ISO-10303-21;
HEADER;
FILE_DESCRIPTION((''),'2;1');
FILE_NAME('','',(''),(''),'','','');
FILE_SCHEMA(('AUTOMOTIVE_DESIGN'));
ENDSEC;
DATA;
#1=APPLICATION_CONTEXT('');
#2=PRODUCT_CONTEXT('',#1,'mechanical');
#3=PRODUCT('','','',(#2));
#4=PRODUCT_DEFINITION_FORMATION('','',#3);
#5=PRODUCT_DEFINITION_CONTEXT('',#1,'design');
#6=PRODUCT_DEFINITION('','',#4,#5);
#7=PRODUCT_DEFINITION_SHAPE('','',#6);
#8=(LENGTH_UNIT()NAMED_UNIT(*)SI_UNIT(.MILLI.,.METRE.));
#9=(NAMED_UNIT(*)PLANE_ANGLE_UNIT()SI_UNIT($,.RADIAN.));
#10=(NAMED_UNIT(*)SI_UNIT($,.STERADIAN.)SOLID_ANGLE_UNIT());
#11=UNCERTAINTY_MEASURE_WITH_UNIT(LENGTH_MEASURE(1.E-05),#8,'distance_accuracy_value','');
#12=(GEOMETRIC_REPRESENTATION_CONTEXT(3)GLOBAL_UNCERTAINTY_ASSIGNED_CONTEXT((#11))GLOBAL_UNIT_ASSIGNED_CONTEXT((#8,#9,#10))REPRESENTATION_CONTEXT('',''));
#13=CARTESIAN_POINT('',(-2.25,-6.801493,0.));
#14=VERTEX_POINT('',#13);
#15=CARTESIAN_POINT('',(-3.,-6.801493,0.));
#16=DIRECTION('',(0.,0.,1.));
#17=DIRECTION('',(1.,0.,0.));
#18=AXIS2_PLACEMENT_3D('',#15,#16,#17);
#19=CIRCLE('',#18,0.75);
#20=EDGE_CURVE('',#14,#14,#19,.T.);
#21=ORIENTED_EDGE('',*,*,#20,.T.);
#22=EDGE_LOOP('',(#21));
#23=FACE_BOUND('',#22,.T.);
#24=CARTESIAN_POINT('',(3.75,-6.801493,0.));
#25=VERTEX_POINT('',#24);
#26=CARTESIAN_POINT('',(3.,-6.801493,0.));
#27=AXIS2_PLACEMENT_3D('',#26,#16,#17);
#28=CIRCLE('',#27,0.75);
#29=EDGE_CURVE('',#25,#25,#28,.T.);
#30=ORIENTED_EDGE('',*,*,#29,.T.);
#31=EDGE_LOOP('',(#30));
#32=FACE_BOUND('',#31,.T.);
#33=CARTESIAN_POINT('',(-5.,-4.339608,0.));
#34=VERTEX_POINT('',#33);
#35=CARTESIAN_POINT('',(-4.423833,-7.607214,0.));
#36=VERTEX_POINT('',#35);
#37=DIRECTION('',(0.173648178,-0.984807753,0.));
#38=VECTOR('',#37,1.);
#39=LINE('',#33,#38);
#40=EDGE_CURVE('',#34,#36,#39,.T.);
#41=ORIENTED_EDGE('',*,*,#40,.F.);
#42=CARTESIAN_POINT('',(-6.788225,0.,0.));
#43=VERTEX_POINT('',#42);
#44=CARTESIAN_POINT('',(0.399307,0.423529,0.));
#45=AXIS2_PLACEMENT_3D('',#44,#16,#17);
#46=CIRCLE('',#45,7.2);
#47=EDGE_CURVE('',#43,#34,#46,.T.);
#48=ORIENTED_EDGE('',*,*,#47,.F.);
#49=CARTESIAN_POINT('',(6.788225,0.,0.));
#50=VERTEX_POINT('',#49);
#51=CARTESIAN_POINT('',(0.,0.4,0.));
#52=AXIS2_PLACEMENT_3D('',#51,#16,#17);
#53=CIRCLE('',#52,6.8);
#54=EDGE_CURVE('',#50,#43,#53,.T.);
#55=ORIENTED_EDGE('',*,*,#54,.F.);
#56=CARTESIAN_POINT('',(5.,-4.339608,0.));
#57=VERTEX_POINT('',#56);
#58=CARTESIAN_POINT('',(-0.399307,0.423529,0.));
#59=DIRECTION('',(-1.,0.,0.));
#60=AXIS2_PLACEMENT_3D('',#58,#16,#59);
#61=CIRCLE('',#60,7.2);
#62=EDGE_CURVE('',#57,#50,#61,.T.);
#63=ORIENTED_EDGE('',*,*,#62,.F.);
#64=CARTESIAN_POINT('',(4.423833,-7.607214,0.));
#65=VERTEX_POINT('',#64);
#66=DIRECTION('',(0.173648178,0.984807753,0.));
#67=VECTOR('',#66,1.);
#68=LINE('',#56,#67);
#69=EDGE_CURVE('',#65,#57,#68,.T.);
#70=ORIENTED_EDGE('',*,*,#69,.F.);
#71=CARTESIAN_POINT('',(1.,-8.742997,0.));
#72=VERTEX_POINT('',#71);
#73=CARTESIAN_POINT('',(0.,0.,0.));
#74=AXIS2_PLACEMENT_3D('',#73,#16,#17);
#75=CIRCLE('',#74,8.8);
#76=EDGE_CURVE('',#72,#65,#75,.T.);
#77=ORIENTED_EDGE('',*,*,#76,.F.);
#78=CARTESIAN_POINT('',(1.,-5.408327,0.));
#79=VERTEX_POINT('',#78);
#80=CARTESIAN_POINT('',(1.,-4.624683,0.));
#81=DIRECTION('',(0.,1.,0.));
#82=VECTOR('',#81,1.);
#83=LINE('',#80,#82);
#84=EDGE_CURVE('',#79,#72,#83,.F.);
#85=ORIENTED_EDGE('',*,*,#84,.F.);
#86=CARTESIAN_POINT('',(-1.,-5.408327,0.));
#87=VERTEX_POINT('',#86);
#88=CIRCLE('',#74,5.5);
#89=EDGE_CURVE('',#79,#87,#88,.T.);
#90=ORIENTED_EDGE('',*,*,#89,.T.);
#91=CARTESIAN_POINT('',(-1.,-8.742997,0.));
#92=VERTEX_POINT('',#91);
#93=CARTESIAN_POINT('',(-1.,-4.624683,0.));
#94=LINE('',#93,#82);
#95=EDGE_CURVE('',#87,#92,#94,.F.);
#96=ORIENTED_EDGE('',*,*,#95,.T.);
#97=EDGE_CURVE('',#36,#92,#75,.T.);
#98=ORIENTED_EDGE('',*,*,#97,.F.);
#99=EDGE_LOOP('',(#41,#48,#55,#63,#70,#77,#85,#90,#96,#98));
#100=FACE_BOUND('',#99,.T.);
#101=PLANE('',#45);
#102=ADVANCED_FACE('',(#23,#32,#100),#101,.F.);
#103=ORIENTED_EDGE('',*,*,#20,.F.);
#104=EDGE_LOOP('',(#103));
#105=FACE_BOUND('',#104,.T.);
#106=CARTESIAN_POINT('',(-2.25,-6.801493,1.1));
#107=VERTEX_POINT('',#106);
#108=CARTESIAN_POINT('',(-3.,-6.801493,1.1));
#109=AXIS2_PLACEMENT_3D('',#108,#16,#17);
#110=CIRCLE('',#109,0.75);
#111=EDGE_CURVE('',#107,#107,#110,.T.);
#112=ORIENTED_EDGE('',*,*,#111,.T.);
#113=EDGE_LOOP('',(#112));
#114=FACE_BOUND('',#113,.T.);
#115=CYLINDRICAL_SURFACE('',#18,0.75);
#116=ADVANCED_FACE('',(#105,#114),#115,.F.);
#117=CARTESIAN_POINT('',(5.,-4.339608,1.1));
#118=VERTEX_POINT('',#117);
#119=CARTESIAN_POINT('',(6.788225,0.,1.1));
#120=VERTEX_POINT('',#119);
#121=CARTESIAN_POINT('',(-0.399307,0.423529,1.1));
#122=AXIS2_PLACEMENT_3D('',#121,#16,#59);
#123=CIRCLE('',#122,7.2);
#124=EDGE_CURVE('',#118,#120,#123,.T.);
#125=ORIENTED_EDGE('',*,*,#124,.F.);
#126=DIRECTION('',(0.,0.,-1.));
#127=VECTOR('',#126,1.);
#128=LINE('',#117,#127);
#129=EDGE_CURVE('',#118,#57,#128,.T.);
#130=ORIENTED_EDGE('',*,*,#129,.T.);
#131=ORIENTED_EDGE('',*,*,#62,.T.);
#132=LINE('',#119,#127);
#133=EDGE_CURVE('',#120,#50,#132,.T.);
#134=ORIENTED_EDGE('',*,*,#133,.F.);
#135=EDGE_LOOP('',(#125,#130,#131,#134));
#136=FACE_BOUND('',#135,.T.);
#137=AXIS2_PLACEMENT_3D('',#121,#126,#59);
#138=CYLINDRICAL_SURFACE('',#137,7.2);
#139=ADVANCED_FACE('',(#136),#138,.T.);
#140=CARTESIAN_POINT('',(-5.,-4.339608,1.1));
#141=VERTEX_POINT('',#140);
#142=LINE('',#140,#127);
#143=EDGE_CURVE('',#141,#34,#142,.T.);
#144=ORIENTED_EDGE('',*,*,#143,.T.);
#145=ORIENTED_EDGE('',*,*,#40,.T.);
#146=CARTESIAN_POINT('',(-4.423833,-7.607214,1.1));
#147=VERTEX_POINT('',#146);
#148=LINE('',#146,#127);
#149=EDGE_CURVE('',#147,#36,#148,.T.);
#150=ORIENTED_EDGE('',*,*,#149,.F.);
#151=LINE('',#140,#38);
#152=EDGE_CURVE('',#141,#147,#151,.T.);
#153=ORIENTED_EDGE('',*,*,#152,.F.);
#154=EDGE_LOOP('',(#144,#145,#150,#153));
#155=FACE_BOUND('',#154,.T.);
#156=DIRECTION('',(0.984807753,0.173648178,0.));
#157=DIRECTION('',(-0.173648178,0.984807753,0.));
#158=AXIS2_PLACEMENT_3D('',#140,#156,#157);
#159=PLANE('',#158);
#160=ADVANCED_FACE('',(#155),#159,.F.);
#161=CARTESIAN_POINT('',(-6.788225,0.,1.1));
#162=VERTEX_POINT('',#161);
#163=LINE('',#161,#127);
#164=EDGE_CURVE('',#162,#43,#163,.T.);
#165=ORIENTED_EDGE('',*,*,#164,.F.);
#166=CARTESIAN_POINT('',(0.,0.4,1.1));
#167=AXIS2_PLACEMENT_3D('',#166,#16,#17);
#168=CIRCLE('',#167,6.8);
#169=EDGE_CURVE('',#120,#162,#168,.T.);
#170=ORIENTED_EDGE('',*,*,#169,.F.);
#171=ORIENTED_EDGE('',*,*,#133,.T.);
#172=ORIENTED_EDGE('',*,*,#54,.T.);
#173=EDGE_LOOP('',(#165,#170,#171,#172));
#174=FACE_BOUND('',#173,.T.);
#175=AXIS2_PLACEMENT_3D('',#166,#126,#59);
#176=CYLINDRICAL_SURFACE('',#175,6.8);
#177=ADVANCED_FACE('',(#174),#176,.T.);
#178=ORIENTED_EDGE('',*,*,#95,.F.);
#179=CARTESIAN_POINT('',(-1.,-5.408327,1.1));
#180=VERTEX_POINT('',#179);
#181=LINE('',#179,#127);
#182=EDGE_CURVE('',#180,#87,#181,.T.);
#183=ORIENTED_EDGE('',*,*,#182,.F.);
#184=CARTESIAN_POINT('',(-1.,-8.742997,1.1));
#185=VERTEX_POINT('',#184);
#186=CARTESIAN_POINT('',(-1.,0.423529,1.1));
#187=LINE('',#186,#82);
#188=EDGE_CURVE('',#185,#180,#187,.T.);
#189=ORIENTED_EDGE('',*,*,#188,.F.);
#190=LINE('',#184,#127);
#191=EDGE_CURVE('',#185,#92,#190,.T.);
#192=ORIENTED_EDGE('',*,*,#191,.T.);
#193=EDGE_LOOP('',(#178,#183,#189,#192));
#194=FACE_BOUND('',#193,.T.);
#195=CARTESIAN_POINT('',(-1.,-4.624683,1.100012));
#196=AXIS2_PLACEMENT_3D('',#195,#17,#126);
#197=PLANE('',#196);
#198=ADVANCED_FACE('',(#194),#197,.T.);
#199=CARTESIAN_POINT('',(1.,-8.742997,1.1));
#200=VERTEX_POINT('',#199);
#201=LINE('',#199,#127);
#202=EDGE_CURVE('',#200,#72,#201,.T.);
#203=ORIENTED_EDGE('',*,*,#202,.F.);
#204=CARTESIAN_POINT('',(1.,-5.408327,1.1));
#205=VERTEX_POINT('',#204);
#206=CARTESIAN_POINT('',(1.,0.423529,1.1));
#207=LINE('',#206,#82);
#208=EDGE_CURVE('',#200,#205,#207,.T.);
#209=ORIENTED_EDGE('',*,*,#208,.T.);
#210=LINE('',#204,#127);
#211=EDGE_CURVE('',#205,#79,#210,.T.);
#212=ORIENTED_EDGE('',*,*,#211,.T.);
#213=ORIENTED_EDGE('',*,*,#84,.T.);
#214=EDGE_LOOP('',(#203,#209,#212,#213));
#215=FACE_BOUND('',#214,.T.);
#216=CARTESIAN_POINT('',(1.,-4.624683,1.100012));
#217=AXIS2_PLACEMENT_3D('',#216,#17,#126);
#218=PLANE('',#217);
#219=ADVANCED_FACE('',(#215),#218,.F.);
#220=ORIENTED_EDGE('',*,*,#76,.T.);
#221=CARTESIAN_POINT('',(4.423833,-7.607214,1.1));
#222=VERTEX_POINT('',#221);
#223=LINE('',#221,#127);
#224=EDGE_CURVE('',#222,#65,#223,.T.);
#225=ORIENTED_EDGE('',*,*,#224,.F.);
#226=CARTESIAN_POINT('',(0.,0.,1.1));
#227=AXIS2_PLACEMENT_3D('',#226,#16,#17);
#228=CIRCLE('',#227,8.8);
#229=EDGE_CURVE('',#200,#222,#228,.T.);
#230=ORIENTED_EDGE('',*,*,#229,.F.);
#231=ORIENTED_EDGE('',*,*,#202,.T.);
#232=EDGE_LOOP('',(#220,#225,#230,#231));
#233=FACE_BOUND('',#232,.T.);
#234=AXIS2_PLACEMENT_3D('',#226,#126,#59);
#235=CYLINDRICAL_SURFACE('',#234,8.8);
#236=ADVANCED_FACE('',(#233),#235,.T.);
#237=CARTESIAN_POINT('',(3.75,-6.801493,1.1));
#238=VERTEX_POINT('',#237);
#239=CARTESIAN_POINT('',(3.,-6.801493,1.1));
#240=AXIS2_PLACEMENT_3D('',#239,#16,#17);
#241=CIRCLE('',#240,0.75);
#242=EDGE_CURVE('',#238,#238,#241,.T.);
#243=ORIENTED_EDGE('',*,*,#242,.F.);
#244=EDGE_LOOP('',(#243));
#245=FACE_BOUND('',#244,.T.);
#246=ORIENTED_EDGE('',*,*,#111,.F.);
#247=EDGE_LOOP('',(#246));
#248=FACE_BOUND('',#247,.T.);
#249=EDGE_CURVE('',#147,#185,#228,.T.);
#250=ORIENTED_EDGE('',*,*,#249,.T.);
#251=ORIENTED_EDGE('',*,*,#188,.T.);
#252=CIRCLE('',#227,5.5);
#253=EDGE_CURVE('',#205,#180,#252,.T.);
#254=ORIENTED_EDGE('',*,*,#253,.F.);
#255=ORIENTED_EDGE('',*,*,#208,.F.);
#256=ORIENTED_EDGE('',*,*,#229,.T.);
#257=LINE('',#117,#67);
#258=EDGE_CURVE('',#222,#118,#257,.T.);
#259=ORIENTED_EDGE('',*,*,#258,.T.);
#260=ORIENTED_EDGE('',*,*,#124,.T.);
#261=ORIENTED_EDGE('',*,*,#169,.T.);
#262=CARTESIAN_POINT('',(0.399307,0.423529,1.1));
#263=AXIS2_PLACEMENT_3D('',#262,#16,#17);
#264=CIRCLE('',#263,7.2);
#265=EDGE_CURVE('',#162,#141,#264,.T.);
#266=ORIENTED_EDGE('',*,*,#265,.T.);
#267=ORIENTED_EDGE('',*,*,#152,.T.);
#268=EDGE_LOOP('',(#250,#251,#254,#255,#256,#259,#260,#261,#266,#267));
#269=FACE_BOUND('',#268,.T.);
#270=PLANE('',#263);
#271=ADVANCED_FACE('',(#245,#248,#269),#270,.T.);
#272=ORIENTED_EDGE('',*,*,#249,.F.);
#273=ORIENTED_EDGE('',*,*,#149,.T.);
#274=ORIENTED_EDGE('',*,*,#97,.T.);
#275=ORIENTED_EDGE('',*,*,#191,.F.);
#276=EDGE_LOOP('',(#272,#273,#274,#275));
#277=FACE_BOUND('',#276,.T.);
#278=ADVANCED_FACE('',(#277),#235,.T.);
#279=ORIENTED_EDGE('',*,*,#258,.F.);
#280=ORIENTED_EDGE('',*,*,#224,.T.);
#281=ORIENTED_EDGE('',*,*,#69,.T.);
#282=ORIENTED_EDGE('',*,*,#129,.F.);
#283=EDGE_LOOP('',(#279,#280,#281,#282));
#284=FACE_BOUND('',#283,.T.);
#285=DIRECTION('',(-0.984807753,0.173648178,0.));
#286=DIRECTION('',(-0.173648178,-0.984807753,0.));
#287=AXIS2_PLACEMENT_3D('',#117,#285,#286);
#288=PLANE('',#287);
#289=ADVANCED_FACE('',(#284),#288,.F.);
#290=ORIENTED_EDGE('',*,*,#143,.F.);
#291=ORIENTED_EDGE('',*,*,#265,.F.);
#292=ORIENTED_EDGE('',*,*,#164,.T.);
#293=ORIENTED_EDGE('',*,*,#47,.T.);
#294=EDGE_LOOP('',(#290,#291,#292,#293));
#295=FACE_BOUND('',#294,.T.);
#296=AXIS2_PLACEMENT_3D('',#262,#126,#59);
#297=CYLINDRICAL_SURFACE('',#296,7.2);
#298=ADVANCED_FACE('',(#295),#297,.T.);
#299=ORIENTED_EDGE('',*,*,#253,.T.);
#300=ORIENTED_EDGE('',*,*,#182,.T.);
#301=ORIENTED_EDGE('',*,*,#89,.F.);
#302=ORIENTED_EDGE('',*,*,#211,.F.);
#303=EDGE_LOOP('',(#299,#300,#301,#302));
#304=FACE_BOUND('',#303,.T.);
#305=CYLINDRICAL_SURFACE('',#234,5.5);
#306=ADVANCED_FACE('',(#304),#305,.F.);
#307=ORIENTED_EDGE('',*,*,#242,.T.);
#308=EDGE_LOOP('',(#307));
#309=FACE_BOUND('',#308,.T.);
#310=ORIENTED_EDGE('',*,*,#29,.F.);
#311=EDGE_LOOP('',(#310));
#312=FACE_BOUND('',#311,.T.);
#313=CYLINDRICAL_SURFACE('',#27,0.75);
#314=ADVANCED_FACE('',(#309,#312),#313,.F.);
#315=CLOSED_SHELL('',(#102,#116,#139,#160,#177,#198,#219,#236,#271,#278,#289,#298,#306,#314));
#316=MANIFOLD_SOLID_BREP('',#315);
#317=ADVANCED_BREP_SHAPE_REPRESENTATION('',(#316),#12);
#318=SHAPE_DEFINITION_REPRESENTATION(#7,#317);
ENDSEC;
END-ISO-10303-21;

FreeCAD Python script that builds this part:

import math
import FreeCAD as App
import Part
import Sketcher
from FreeCAD import Vector
Q = App.Units.Quantity

doc = App.newDocument("Part")
body = doc.addObject("PartDesign::Body", "Body")

sketch1 = body.newObject("Sketcher::SketchObject", "Sketch")
sketch1.AttachmentSupport = (doc.getObject("XY_Plane"), [""])
sketch1.MapMode = "FlatFace"
sketch1.addGeometry([
    Part.LineSegment(Vector(-5, -4.3, 0), Vector(-4.4, -7.6, 0)),
    Part.ArcOfCircle(Part.Circle(Vector(0, 0, 0), Vector(0, 0, 1), 8.8), math.radians(-120), math.radians(-60)),
    Part.LineSegment(Vector(4.4, -7.6, 0), Vector(5, -4.3, 0)),
    Part.ArcOfCircle(Part.Circle(Vector(-0.4, 0.4, 0), Vector(0, 0, 1), 7.2), math.radians(-41), math.radians(-3)),
    Part.ArcOfCircle(Part.Circle(Vector(0, 0.4, 0), Vector(0, 0, 1), 6.8), math.radians(-3), math.radians(183)),
    Part.ArcOfCircle(Part.Circle(Vector(0.4, 0.4, 0), Vector(0, 0, 1), 7.2), math.radians(-177), math.radians(-139)),
    Part.Circle(Vector(0, 0, 0), Vector(0, 0, 1), 5.5),
], False)
sketch1.addConstraint([
    Sketcher.Constraint("Coincident", 0, 2, 1, 1),
    Sketcher.Constraint("Coincident", 1, 2, 2, 1),
    Sketcher.Constraint("Coincident", 2, 2, 3, 1),
    Sketcher.Constraint("Tangent", 3, 2, 4, 1),
    Sketcher.Constraint("Tangent", 4, 2, 5, 1),
    Sketcher.Constraint("Coincident", 5, 2, 0, 1),
    Sketcher.Constraint("Coincident", 1, 3, -1, 1),
    Sketcher.Constraint("Coincident", 6, 3, -1, 1),
    Sketcher.Constraint("Equal", 3, 5),
    Sketcher.Constraint("Symmetric", 3, 2, 4, 2, -1, 1),
    Sketcher.Constraint("Symmetric", 2, 2, 5, 2, -2),
    Sketcher.Constraint("Horizontal", 0, 2, 1, 2),
    Sketcher.Constraint("Diameter", 6, Q("11 mm")),
    Sketcher.Constraint("Radius", 1, Q("8.8 mm")),
    Sketcher.Constraint("Radius", 3, Q("7.2 mm")),
    Sketcher.Constraint("Radius", 4, Q("6.8 mm")),
    Sketcher.Constraint("Angle", 0, Q("-80 deg")),
    Sketcher.Constraint("DistanceX", -1, 1, 2, 2, Q("5 mm")),
    Sketcher.Constraint("DistanceY", -1, 1, 4, 3, Q("0.4 mm")),
])
pad1 = body.newObject("PartDesign::Pad", "Pad")
pad1.Profile = sketch1
pad1.Length = 1.1

sketch2 = body.newObject("Sketcher::SketchObject", "Sketch001")
sketch2.AttachmentSupport = (doc.getObject("XY_Plane"), [""])
sketch2.MapMode = "FlatFace"
sketch2.AttachmentOffset = App.Placement(Vector(0, 0, 1.1), App.Rotation())
sketch2.addGeometry([
    Part.LineSegment(Vector(-1, -4.6, 0), Vector(-1, -13.4, 0)),
    Part.LineSegment(Vector(-1, -13.4, 0), Vector(1, -13.4, 0)),
    Part.LineSegment(Vector(1, -13.4, 0), Vector(1, -4.6, 0)),
    Part.LineSegment(Vector(1, -4.6, 0), Vector(-1, -4.6, 0)),
], False)
sketch2.addConstraint([
    Sketcher.Constraint("Coincident", 0, 2, 1, 1),
    Sketcher.Constraint("Coincident", 1, 2, 2, 1),
    Sketcher.Constraint("Coincident", 2, 2, 3, 1),
    Sketcher.Constraint("Coincident", 3, 2, 0, 1),
    Sketcher.Constraint("Vertical", 0),
    Sketcher.Constraint("Horizontal", 1),
    Sketcher.Constraint("Vertical", 2),
    Sketcher.Constraint("Horizontal", 3),
    Sketcher.Constraint("DistanceX", 1, 1, 1, 2, Q("2 mm")),
    Sketcher.Constraint("DistanceX", 0, 2, -1, 1, Q("1 mm")),
    Sketcher.Constraint("DistanceY", 0, 2, 0, 1, Q("8.745865 mm")),
    Sketcher.Constraint("DistanceY", 0, 2, -1, 1, Q("13.370548 mm")),
])
pocket1 = body.newObject("PartDesign::Pocket", "Pocket")
pocket1.Profile = sketch2
pocket1.Type = "ThroughAll"
pocket1.Midplane = True

sketch3 = body.newObject("Sketcher::SketchObject", "Sketch002")
sketch3.AttachmentSupport = (doc.getObject("XY_Plane"), [""])
sketch3.MapMode = "FlatFace"
sketch3.AttachmentOffset = App.Placement(Vector(0, 0, 1.1), App.Rotation())
sketch3.addGeometry([
    Part.Circle(Vector(3, -6.8, 0), Vector(0, 0, 1), 0.8),
    Part.Circle(Vector(-3, -6.8, 0), Vector(0, 0, 1), 0.8),
], False)
sketch3.addConstraint([
    Sketcher.Constraint("Equal", 0, 1),
    Sketcher.Constraint("Symmetric", 0, 3, 1, 3, -2),
    Sketcher.Constraint("Diameter", 0, Q("1.5 mm")),
    Sketcher.Constraint("DistanceX", -1, 1, 0, 3, Q("3 mm")),
    Sketcher.Constraint("DistanceY", 0, 3, -1, 1, Q("6.801493 mm")),
])
pocket2 = body.newObject("PartDesign::Pocket", "Pocket001")
pocket2.Profile = sketch3
pocket2.Type = "ThroughAll"

doc.recompute()
